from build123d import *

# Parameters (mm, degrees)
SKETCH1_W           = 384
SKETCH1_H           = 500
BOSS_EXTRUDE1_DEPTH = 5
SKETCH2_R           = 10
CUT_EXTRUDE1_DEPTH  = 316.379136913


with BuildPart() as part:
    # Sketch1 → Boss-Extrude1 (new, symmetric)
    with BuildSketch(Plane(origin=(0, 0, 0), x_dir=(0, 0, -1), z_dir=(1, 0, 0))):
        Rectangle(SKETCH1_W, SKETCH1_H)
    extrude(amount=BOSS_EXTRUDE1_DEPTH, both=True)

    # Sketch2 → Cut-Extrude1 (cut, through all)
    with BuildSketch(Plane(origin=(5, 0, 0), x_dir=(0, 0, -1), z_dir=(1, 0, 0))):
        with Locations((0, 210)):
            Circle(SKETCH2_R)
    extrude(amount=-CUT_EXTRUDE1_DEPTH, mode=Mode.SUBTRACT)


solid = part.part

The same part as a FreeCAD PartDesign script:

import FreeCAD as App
import Part
import Sketcher

doc = App.newDocument("Part")
body = doc.addObject("PartDesign::Body", "Body")

# Sketch on YZ plane
sketch1 = body.newObject("Sketcher::SketchObject", "Sketch")
sketch1.AttachmentSupport = (doc.getObject("YZ_Plane"), [""])
sketch1.MapMode = "FlatFace"
sketch1.addGeometry(Part.LineSegment(App.Vector(250, 192, 0), App.Vector(-250, 192, 0)), False)
sketch1.addGeometry(Part.LineSegment(App.Vector(-250, 192, 0), App.Vector(-250, -192, 0)), False)
sketch1.addGeometry(Part.LineSegment(App.Vector(-250, -192, 0), App.Vector(250, -192, 0)), False)
sketch1.addGeometry(Part.LineSegment(App.Vector(250, -192, 0), App.Vector(250, 192, 0)), False)
sketch1.addConstraint(Sketcher.Constraint("Coincident", 0, 2, 1, 1))
sketch1.addConstraint(Sketcher.Constraint("Coincident", 1, 2, 2, 1))
sketch1.addConstraint(Sketcher.Constraint("Coincident", 2, 2, 3, 1))
sketch1.addConstraint(Sketcher.Constraint("Coincident", 3, 2, 0, 1))
sketch1.addConstraint(Sketcher.Constraint("Horizontal", 0))
sketch1.addConstraint(Sketcher.Constraint("Vertical", 1))
sketch1.addConstraint(Sketcher.Constraint("Horizontal", 2))
sketch1.addConstraint(Sketcher.Constraint("Vertical", 3))
sketch1.addConstraint(Sketcher.Constraint("Symmetric", 0, 2, 2, 2, -1, 1))
sketch1.addConstraint(Sketcher.Constraint("DistanceX", 0, 2, 0, 1, 500.0))
sketch1.addConstraint(Sketcher.Constraint("DistanceY", 1, 2, 1, 1, 384.0))
pad1 = body.newObject("PartDesign::Pad", "Pad")
pad1.Profile = sketch1
pad1.Length = 10
pad1.Midplane = True

# Sketch on YZ plane
sketch2 = body.newObject("Sketcher::SketchObject", "Sketch001")
sketch2.AttachmentSupport = (doc.getObject("YZ_Plane"), [""])
sketch2.MapMode = "FlatFace"
sketch2.AttachmentOffset = App.Placement(App.Vector(0, 0, 5), App.Rotation())
sketch2.addGeometry(Part.Circle(App.Vector(210, 0, 0), App.Vector(0, 0, 1), 10), False)
sketch2.addConstraint(Sketcher.Constraint("PointOnObject", 0, 3, -1))
sketch2.addConstraint(Sketcher.Constraint("Diameter", 0, 20.0))
sketch2.addConstraint(Sketcher.Constraint("DistanceX", -1, 1, 0, 3, 210.0))
pocket1 = body.newObject("PartDesign::Pocket", "Pocket")
pocket1.Profile = sketch2
pocket1.Type = "ThroughAll"

doc.recompute()
